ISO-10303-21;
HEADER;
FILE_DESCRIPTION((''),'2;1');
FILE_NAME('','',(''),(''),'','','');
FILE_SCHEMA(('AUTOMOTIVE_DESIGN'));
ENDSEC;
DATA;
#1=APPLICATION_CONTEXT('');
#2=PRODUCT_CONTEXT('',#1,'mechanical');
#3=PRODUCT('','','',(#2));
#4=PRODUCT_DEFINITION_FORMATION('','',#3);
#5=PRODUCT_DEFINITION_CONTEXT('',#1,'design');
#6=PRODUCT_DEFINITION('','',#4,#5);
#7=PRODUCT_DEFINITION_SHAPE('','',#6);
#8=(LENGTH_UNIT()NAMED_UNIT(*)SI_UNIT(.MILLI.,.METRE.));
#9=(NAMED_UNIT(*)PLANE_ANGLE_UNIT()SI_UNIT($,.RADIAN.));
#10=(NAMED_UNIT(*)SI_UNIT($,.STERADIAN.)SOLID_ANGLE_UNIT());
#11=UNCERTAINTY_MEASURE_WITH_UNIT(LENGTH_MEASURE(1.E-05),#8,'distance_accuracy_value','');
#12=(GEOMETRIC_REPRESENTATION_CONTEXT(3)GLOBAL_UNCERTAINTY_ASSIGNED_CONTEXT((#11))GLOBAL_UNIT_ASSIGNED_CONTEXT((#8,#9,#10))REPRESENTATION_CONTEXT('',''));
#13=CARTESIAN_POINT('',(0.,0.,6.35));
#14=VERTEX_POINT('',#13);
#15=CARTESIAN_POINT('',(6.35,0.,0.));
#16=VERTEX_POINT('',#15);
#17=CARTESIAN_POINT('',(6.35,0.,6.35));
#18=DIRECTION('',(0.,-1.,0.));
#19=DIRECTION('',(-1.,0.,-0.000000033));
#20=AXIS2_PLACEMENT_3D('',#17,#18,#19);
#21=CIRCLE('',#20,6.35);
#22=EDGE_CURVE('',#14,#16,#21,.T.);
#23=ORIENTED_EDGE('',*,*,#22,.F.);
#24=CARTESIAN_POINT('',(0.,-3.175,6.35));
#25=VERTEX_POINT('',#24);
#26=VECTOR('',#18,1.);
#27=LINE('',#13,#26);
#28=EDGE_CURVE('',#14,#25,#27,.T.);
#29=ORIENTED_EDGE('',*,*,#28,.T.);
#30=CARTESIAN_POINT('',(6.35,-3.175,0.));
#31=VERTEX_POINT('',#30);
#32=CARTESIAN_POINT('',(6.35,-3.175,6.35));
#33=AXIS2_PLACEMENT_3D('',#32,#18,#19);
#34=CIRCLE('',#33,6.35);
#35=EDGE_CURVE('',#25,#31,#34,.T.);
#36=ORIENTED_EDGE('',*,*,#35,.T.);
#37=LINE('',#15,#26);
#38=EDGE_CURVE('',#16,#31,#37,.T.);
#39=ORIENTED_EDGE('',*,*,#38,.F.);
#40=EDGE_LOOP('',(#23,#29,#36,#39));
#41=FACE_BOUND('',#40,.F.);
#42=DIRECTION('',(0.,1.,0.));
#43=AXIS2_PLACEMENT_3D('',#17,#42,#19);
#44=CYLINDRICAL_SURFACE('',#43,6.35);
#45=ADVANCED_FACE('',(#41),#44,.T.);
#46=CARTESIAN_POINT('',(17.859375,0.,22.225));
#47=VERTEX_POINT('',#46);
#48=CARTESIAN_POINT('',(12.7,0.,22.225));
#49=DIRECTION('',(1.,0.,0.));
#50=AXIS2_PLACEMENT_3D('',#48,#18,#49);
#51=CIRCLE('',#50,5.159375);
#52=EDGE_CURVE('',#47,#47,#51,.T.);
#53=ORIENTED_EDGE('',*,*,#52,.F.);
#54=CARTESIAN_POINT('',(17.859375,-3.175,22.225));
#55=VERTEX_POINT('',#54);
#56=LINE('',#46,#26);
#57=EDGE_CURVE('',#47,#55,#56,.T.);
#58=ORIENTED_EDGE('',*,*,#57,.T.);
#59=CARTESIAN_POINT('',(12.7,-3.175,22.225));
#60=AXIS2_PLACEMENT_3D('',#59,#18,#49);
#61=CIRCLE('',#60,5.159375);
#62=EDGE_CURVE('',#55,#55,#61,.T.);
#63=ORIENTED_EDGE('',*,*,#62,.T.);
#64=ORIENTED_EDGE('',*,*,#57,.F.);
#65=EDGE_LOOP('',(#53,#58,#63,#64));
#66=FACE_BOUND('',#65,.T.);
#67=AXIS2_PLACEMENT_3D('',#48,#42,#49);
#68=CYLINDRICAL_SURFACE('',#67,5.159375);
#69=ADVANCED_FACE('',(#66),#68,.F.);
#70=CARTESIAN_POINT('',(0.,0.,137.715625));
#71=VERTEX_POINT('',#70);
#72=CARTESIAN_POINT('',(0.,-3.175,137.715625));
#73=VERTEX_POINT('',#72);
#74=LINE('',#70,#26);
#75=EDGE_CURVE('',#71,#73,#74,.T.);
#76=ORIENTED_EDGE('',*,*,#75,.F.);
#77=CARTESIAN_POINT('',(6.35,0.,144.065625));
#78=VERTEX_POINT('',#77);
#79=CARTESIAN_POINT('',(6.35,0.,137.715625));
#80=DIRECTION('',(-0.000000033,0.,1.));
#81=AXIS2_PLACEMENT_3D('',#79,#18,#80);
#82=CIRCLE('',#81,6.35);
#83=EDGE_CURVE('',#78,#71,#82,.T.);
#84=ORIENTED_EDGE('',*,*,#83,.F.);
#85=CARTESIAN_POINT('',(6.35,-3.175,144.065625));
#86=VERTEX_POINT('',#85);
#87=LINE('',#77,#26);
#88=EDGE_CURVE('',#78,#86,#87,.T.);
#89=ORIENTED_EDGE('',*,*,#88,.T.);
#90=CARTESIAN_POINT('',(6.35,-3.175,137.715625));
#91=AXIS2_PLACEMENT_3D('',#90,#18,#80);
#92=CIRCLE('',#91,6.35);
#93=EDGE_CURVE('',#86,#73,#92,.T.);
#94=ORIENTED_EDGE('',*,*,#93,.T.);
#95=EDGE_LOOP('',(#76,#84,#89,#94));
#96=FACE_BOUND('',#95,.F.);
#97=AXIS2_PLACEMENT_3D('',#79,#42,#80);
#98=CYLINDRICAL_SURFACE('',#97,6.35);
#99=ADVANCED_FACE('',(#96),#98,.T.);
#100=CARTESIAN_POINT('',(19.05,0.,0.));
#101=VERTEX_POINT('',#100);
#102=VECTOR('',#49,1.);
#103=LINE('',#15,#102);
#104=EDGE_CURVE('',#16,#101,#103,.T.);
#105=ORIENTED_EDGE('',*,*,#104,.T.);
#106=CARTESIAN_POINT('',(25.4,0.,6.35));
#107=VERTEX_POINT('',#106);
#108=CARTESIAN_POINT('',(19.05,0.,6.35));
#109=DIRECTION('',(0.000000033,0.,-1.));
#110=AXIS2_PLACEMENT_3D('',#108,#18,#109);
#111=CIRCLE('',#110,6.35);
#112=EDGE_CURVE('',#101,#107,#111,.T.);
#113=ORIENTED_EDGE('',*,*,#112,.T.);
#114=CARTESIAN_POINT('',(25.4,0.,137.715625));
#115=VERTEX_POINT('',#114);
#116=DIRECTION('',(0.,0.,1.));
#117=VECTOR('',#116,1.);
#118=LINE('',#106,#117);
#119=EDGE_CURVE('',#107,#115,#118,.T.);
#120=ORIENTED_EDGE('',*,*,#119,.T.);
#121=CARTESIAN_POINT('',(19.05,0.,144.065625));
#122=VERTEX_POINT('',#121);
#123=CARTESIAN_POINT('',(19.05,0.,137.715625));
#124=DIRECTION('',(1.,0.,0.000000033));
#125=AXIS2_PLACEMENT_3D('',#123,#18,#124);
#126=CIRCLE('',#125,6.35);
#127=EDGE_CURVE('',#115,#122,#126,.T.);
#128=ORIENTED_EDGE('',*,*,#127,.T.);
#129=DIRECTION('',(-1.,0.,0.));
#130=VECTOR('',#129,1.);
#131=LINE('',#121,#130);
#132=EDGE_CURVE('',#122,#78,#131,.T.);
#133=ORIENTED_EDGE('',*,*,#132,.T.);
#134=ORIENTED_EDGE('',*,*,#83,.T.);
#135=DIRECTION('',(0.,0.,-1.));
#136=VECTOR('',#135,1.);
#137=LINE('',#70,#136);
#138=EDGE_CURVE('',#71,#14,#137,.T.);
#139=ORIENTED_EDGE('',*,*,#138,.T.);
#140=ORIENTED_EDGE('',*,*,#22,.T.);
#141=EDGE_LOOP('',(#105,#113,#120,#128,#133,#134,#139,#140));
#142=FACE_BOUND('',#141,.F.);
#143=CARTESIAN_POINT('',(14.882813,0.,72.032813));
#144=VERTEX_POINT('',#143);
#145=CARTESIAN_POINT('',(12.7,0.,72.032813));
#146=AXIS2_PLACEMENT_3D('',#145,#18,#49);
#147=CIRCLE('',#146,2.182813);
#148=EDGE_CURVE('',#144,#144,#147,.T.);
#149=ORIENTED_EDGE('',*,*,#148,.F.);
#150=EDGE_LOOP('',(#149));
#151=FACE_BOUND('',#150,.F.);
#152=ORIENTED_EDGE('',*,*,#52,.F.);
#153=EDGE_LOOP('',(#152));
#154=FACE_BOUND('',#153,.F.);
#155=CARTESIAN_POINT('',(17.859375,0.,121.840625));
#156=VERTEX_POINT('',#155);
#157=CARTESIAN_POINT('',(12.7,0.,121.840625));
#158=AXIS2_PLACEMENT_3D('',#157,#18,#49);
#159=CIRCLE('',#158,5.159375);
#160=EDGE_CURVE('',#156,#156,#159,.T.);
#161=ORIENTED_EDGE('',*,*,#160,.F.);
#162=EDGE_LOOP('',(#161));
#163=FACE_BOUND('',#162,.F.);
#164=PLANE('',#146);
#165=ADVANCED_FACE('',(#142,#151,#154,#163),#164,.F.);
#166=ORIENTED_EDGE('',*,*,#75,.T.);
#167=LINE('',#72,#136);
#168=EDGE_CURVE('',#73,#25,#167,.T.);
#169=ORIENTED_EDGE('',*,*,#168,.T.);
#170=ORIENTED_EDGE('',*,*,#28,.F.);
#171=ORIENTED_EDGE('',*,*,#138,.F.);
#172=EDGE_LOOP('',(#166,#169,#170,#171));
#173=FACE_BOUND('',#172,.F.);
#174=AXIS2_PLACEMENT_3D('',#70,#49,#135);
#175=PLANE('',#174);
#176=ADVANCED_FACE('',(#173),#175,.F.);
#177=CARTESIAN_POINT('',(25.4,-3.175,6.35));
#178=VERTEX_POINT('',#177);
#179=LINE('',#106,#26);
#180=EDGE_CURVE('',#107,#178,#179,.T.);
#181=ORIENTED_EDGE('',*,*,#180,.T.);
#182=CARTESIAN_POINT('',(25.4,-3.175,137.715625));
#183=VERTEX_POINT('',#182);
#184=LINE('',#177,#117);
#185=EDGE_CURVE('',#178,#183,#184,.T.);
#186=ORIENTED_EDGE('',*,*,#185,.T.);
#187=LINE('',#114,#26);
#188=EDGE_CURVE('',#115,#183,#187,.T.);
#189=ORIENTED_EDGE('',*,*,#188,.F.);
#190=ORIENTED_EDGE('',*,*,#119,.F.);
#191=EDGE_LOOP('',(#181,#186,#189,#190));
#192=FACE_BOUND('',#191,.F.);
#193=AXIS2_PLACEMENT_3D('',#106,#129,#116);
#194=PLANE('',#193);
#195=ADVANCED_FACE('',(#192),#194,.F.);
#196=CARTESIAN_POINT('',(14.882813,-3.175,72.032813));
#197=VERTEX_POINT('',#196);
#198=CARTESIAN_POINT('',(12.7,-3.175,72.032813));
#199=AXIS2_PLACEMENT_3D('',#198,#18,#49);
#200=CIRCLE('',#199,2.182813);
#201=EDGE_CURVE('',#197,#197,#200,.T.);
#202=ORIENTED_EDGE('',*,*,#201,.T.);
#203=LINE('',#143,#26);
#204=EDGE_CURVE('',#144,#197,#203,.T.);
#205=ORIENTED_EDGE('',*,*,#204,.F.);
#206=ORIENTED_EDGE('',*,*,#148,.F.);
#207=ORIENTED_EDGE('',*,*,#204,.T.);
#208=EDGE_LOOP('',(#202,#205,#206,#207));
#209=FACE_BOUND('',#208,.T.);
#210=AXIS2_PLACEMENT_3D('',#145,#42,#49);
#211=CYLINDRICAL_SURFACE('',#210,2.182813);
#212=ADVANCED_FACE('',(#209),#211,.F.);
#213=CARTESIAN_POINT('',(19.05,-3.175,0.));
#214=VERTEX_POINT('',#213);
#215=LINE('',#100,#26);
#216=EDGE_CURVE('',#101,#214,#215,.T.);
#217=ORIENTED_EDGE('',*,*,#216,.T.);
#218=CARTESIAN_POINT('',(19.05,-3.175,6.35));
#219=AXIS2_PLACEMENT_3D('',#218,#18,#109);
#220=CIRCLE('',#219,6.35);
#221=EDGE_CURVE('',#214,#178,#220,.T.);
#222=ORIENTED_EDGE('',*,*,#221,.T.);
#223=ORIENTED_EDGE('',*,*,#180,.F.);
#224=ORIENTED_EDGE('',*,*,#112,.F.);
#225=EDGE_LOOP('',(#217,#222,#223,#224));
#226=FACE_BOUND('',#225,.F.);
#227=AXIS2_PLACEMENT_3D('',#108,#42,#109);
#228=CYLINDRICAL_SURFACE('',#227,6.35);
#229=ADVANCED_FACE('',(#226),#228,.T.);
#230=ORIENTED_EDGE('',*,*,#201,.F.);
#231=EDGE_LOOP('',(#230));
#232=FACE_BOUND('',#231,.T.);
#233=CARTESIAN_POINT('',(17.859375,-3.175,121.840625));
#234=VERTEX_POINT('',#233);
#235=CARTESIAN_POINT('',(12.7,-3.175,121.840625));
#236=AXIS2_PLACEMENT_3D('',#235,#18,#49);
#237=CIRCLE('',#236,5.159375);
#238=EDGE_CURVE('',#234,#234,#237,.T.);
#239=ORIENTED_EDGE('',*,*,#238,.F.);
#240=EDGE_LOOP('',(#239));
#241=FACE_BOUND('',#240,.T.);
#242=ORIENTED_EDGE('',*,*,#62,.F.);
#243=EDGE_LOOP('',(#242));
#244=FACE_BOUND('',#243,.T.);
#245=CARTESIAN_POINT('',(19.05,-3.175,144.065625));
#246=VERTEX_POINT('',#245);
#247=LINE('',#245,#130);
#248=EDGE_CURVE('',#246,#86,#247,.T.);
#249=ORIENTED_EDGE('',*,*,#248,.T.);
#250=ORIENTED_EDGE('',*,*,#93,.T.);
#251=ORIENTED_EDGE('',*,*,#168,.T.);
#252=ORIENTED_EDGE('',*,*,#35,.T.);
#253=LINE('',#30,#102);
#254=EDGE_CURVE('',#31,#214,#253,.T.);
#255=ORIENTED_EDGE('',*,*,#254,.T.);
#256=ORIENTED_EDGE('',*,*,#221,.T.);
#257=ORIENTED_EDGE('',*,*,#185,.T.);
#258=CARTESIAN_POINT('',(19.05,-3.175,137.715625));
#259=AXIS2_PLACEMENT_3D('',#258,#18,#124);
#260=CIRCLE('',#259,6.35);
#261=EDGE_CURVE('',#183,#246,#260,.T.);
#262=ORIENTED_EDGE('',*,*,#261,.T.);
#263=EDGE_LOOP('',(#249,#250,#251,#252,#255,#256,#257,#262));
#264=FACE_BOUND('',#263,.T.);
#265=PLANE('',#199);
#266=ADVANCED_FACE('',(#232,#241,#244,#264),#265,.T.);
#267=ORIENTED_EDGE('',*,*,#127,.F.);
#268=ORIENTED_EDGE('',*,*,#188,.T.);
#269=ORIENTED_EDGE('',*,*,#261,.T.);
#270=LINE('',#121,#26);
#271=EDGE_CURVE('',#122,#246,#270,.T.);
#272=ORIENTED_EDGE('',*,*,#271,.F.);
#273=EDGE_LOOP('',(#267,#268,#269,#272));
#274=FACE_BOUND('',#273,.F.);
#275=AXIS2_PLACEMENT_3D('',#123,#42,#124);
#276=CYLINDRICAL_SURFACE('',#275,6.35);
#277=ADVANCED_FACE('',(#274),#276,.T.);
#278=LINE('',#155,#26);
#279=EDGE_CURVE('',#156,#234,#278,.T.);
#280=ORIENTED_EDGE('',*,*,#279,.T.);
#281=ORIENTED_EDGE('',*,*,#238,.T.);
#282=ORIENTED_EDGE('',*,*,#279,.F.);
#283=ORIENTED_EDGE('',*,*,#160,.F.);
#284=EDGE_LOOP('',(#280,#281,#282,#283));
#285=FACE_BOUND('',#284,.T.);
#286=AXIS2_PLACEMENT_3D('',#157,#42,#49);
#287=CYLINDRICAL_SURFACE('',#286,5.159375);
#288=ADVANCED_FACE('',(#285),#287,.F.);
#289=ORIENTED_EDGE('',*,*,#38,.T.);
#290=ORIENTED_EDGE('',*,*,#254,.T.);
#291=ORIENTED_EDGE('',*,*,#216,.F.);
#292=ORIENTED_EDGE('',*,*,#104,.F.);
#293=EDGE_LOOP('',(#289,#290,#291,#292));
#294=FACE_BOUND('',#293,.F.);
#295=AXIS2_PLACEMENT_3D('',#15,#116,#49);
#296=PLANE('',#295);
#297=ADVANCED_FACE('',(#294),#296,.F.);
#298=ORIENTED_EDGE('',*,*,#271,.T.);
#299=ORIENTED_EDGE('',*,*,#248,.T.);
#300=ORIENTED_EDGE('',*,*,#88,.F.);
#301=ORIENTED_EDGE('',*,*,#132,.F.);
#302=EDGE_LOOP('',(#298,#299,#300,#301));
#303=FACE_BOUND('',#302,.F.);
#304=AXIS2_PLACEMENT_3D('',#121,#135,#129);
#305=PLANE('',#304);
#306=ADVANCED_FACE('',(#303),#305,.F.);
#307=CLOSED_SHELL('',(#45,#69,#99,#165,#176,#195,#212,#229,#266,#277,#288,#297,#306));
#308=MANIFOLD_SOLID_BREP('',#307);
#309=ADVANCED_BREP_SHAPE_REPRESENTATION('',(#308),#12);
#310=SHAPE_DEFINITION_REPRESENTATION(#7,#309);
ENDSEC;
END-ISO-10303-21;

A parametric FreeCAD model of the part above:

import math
import FreeCAD as App
import Part
import Sketcher
from FreeCAD import Vector
Q = App.Units.Quantity

doc = App.newDocument("Part")
body = doc.addObject("PartDesign::Body", "Body")

sketch1 = body.newObject("Sketcher::SketchObject", "Sketch")
sketch1.AttachmentSupport = (doc.getObject("XZ_Plane"), [""])
sketch1.MapMode = "FlatFace"
sketch1.addGeometry([
    Part.ArcOfCircle(Part.Circle(Vector(6.35, 6.35, 0), Vector(0, 0, 1), 6.35), math.radians(-179.999998), math.radians(-90.000002)),
    Part.LineSegment(Vector(6.35, 0, 0), Vector(19.05, 0, 0)),
    Part.ArcOfCircle(Part.Circle(Vector(19.05, 6.35, 0), Vector(0, 0, 1), 6.35), math.radians(-89.999998), math.radians(-0.000002)),
    Part.LineSegment(Vector(25.4, 6.35, 0), Vector(25.4, 137.715625, 0)),
    Part.ArcOfCircle(Part.Circle(Vector(19.05, 137.715625, 0), Vector(0, 0, 1), 6.35), math.radians(0.000002), math.radians(89.999998)),
    Part.LineSegment(Vector(19.05, 144.065625, 0), Vector(6.35, 144.065625, 0)),
    Part.ArcOfCircle(Part.Circle(Vector(6.35, 137.715625, 0), Vector(0, 0, 1), 6.35), math.radians(90.000002), math.radians(179.999998)),
    Part.LineSegment(Vector(0, 137.715625, 0), Vector(0, 6.35, 0)),
    Part.Circle(Vector(12.7, 22.225, 0), Vector(0, 0, 1), 5.159375),
    Part.Circle(Vector(12.7, 72.032813, 0), Vector(0, 0, 1), 2.182813),
    Part.Circle(Vector(12.7, 121.840625, 0), Vector(0, 0, 1), 5.159375),
], False)
sketch1.addConstraint([
    Sketcher.Constraint("Tangent", 0, 2, 1, 1),
    Sketcher.Constraint("Tangent", 1, 2, 2, 1),
    Sketcher.Constraint("Tangent", 2, 2, 3, 1),
    Sketcher.Constraint("Tangent", 3, 2, 4, 1),
    Sketcher.Constraint("Tangent", 4, 2, 5, 1),
    Sketcher.Constraint("Tangent", 5, 2, 6, 1),
    Sketcher.Constraint("Tangent", 6, 2, 7, 1),
    Sketcher.Constraint("Tangent", 7, 2, 0, 1),
    Sketcher.Constraint("Horizontal", 1),
    Sketcher.Constraint("Vertical", 3),
    Sketcher.Constraint("Horizontal", 5),
    Sketcher.Constraint("Vertical", 7),
    Sketcher.Constraint("Equal", 0, 2),
    Sketcher.Constraint("Equal", 2, 4),
    Sketcher.Constraint("Equal", 4, 6),
    Sketcher.Constraint("Equal", 8, 10),
    Sketcher.Constraint("PointOnObject", 0, 2, -1),
    Sketcher.Constraint("PointOnObject", 6, 2, -2),
    Sketcher.Constraint("Vertical", 8, 3, 9, 3),
    Sketcher.Constraint("Vertical", 9, 3, 10, 3),
    Sketcher.Constraint("Radius", 0, Q("0.25 in")),
    Sketcher.Constraint("Diameter", 8, Q("0.40625 in")),
    Sketcher.Constraint("Diameter", 9, Q("0.171875 in")),
    Sketcher.Constraint("DistanceX", 1, 1, 1, 2, Q("0.5 in")),
    Sketcher.Constraint("DistanceX", -1, 1, 8, 3, Q("0.5 in")),
    Sketcher.Constraint("DistanceY", 3, 1, 3, 2, Q("5.171875 in")),
    Sketcher.Constraint("DistanceY", -1, 1, 8, 3, Q("0.875 in")),
    Sketcher.Constraint("DistanceY", -1, 1, 10, 3, Q("4.796875 in")),
    Sketcher.Constraint("DistanceY", 9, 3, 4, 3, Q("65.682812 mm")),
])
pad1 = body.newObject("PartDesign::Pad", "Pad")
pad1.Profile = sketch1
pad1.Length = Q("0.125 in")

doc.recompute()
